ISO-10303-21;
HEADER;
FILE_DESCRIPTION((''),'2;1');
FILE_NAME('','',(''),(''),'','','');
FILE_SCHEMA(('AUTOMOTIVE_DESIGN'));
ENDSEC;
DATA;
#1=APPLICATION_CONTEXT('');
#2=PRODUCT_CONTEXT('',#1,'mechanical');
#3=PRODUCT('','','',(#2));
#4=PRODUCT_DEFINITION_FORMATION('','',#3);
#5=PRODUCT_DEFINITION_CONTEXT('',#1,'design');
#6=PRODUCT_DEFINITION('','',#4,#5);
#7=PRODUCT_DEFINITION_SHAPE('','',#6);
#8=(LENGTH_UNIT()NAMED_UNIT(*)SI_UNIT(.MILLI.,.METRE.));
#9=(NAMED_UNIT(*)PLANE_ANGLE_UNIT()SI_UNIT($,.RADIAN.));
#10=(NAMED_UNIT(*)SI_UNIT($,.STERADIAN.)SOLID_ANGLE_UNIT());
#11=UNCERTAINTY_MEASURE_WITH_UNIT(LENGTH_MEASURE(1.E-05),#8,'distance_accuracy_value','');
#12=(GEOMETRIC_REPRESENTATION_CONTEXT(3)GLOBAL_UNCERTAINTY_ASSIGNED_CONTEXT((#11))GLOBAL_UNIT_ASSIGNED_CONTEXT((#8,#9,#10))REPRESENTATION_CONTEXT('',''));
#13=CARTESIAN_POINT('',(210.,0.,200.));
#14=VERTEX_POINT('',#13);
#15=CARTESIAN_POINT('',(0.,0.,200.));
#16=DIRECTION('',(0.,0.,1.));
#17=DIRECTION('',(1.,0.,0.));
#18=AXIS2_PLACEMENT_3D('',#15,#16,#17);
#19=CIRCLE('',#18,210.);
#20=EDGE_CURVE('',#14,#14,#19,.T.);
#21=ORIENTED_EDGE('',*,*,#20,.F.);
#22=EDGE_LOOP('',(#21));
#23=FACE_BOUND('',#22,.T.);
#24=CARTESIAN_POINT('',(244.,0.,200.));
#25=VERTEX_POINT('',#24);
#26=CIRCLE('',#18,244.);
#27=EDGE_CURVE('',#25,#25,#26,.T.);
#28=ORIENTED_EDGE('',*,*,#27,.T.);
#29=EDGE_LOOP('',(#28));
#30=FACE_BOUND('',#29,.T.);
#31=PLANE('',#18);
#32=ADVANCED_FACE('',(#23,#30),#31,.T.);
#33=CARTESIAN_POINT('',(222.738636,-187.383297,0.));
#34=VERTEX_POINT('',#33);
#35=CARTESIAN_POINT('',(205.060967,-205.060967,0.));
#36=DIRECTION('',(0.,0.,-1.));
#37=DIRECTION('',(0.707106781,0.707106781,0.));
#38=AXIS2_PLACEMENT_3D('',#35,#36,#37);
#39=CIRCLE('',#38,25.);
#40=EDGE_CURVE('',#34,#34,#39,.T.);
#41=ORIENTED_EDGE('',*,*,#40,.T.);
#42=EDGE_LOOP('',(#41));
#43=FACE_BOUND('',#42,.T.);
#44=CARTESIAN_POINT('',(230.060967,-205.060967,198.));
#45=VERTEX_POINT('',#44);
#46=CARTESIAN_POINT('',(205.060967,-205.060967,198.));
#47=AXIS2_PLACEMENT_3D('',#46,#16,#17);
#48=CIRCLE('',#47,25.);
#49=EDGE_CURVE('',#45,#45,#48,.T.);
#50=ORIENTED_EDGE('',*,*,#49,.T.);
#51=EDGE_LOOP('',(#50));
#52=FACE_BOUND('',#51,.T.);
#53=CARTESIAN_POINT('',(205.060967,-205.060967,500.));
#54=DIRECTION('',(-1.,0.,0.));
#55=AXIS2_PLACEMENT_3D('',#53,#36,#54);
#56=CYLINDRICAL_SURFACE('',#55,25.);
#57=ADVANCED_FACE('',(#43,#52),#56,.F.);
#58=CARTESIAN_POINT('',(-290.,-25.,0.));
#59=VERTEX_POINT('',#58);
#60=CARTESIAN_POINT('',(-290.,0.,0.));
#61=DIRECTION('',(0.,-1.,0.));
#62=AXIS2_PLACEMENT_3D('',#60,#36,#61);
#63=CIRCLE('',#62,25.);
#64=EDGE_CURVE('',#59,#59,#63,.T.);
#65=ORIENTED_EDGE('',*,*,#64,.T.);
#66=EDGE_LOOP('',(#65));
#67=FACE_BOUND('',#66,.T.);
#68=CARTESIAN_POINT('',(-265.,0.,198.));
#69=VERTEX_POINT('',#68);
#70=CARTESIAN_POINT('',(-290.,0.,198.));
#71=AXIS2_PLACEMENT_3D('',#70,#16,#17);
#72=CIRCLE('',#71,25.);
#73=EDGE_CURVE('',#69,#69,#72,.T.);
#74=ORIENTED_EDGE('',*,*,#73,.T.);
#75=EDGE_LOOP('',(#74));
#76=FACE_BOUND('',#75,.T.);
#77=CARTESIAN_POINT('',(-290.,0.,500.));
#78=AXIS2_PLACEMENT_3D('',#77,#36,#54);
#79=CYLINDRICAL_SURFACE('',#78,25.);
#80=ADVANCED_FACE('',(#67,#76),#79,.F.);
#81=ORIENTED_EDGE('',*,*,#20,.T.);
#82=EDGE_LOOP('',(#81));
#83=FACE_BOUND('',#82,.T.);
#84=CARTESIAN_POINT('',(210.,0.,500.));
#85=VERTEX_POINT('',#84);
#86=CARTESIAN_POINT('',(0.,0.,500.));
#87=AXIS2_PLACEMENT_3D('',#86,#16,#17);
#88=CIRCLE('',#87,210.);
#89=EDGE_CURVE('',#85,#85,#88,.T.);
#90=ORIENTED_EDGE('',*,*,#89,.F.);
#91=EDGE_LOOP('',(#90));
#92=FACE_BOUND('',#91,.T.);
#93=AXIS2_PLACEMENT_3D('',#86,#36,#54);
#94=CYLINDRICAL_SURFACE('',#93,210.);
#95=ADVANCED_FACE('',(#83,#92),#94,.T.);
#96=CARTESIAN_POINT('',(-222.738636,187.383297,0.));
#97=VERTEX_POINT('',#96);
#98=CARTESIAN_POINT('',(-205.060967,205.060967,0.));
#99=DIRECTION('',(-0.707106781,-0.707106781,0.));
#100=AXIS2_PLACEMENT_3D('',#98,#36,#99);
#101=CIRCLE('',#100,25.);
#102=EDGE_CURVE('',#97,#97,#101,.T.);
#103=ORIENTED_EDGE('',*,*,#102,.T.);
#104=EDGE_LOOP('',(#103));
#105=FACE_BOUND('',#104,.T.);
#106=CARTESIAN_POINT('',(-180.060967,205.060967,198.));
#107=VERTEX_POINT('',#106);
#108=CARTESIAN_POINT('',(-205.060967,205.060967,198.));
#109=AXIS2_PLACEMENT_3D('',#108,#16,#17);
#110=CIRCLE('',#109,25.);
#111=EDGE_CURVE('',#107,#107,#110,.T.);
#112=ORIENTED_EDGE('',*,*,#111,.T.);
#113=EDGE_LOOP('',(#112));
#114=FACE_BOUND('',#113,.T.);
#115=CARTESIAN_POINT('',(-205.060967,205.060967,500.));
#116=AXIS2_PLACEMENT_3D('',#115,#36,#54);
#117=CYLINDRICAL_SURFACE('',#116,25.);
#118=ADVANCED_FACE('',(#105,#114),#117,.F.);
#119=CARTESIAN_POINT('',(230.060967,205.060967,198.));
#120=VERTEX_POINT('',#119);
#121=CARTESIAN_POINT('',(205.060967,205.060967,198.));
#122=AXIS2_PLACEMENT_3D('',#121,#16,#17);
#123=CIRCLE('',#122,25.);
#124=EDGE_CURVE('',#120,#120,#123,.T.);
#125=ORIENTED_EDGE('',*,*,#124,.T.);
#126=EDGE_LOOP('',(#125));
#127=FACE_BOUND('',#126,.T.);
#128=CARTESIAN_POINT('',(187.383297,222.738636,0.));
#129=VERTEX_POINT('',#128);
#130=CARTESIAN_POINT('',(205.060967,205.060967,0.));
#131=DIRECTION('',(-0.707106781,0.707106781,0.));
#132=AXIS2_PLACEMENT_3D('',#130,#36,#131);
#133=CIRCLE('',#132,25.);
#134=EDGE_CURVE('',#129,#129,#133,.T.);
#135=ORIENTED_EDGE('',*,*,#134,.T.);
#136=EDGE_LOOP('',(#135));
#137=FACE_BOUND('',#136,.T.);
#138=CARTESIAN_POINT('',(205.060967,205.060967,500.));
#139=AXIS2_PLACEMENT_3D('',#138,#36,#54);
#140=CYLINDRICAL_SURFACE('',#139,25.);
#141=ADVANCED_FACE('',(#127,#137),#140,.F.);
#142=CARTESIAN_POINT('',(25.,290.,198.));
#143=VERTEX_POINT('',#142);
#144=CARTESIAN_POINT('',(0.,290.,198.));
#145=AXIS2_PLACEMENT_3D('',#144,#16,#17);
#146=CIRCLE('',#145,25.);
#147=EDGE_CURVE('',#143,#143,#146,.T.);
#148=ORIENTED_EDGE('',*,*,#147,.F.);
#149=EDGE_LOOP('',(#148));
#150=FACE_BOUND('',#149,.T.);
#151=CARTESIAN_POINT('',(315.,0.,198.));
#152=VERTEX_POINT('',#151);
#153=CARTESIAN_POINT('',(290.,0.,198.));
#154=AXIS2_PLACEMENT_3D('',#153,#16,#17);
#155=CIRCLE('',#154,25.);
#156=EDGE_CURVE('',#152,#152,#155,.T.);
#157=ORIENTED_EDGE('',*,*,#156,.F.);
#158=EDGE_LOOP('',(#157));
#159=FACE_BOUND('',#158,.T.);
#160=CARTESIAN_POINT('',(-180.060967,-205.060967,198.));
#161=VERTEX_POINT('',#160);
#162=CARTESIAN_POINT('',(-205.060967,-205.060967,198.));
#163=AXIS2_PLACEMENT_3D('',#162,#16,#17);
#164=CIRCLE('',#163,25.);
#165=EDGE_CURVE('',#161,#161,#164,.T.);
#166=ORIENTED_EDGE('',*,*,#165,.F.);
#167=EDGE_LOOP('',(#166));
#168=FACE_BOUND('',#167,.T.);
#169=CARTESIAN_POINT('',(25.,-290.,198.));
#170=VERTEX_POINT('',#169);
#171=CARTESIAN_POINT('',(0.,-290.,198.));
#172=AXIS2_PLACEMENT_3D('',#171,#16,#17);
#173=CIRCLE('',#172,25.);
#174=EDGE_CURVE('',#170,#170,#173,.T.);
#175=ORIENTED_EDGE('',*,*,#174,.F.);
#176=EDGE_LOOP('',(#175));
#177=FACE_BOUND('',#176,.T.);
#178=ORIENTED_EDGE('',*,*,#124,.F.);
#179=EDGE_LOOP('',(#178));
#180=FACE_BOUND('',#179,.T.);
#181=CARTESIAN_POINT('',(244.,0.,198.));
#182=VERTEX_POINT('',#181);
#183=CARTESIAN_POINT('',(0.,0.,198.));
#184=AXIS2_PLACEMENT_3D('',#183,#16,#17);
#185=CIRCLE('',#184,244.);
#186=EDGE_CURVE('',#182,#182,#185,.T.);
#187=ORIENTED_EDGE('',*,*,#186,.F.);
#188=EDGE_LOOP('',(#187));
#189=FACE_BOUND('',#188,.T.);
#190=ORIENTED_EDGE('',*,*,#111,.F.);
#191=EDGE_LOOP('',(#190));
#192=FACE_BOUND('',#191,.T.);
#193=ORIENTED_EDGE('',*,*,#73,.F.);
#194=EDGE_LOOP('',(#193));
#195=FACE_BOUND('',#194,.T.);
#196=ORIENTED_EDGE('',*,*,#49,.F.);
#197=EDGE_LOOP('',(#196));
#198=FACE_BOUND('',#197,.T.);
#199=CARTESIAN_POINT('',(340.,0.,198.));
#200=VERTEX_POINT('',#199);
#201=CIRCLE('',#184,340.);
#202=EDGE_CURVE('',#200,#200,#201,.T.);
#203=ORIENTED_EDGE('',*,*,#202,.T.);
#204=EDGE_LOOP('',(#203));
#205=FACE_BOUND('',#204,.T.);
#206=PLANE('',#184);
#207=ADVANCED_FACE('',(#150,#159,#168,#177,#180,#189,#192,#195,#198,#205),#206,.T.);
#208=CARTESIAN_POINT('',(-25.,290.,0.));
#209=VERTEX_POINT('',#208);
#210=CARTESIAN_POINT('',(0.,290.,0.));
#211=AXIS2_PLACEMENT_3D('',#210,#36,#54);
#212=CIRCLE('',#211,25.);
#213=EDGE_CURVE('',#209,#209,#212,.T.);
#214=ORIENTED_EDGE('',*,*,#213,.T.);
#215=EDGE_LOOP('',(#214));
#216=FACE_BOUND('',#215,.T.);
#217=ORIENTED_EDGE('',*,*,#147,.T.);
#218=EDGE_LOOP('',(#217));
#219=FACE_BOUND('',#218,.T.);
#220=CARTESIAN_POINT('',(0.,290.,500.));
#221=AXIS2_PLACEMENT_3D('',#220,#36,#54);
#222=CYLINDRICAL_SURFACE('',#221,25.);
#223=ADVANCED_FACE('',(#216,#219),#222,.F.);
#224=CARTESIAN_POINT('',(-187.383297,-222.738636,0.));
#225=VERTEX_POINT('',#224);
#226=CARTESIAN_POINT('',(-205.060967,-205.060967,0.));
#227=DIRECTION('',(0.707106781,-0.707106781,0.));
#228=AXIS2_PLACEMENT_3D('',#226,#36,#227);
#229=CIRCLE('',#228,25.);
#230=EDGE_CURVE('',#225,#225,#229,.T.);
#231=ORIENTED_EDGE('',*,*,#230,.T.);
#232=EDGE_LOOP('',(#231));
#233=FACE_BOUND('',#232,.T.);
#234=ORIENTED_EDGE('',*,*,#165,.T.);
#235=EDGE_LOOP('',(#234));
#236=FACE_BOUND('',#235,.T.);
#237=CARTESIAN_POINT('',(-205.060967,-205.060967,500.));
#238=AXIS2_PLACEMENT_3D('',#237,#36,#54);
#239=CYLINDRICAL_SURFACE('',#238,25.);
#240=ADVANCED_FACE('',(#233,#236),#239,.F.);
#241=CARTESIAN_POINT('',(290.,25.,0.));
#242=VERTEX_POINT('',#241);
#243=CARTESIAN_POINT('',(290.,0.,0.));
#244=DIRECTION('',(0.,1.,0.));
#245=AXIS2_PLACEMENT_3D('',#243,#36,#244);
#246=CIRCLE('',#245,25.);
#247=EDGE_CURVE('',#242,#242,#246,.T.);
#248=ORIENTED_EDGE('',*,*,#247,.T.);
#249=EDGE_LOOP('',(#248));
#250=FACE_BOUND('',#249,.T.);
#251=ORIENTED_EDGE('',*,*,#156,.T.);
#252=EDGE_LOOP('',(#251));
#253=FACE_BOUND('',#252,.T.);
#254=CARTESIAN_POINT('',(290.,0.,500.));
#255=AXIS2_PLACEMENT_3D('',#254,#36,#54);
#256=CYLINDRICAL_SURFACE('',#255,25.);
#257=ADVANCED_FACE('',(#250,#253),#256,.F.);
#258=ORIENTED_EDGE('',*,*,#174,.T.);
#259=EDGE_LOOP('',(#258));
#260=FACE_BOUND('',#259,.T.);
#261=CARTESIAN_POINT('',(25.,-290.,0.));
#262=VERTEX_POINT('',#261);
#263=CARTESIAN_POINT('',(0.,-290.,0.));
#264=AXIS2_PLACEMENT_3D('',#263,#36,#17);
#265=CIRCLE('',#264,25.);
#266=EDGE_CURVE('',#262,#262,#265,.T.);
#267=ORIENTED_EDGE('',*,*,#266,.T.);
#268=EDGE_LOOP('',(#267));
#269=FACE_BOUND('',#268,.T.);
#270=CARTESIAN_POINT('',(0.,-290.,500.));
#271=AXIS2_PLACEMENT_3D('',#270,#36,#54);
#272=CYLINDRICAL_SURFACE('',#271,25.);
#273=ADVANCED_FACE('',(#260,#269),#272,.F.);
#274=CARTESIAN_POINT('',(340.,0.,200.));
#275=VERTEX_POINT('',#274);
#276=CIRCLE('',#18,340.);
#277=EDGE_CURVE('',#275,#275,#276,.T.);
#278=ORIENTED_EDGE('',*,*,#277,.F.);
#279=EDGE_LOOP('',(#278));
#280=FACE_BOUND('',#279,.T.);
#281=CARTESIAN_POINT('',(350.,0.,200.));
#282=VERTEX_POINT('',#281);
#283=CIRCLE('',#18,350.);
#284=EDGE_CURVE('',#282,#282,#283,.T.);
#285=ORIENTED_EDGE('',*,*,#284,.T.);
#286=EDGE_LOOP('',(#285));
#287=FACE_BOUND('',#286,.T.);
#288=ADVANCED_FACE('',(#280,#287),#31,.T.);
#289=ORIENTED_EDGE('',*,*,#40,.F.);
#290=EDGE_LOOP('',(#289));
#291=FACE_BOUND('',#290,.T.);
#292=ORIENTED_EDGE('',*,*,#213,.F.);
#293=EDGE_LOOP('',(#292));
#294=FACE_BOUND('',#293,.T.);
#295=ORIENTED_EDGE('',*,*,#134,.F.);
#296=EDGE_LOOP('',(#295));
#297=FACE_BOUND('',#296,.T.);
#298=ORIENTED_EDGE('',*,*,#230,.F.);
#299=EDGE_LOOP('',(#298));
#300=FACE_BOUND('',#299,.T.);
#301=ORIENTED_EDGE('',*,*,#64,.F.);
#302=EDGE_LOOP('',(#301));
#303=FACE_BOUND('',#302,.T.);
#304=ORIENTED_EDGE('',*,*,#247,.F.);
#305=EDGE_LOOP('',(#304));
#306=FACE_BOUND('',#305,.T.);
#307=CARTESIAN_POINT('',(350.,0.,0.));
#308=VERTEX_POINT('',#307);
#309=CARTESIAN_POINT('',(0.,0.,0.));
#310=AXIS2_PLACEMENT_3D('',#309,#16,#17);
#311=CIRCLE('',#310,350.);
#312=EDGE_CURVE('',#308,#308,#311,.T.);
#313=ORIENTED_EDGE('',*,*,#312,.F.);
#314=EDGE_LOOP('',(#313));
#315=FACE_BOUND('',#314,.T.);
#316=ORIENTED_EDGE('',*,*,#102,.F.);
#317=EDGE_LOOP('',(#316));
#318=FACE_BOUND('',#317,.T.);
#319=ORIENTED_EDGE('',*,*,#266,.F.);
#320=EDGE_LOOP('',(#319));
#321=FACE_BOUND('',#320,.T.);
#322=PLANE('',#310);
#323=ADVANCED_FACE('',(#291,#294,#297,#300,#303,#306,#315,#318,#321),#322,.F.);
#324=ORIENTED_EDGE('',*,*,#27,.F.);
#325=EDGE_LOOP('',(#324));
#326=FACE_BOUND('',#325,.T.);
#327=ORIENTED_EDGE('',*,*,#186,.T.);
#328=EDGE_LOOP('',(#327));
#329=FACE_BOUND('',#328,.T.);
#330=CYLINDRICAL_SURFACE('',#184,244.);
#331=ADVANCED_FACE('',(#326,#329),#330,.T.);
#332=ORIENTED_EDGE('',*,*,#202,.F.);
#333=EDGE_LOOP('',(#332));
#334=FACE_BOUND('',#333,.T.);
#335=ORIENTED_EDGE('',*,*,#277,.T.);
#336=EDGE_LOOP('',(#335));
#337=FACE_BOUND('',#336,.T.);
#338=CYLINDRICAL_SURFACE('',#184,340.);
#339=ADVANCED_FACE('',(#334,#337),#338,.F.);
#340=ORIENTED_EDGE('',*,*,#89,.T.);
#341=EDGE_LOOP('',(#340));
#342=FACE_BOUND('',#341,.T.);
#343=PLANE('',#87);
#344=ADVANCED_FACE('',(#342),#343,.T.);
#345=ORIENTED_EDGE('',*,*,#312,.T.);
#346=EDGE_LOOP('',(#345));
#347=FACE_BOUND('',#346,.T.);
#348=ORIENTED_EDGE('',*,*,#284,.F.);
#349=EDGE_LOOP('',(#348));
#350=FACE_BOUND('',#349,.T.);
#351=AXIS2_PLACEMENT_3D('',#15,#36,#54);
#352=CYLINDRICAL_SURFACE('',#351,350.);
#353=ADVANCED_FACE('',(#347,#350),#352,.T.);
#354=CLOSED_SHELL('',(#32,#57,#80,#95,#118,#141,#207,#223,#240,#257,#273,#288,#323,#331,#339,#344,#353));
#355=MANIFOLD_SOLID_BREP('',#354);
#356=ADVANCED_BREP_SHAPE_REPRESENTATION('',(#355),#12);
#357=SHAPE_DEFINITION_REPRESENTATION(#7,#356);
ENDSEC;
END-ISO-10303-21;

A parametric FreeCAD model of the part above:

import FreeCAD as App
import Part
import Sketcher

V = App.Vector

doc = App.newDocument("Part")
body = doc.addObject("PartDesign::Body", "Body")

# Sketch on XY plane
sketch1 = body.newObject("Sketcher::SketchObject", "Sketch")
sketch1.AttachmentSupport = (doc.getObject("XY_Plane"), [""])
sketch1.MapMode = "FlatFace"
sketch1.addGeometry(Part.Circle(V(0, 0, 0), V(0, 0, 1), 350), False)
sketch1.addConstraint([
    Sketcher.Constraint("Coincident", 0, 3, -1, 1),
    Sketcher.Constraint("Diameter", 0, 700.0),
])
pad1 = body.newObject("PartDesign::Pad", "Pad")
pad1.Profile = sketch1
pad1.Length = 200

# Sketch on XY plane
sketch2 = body.newObject("Sketcher::SketchObject", "Sketch001")
sketch2.AttachmentSupport = (doc.getObject("XY_Plane"), [""])
sketch2.MapMode = "FlatFace"
sketch2.AttachmentOffset = App.Placement(V(0, 0, 200), App.Rotation())
sketch2.addGeometry(Part.Circle(V(0, 0, 0), V(0, 0, 1), 210), False)
sketch2.addConstraint([
    Sketcher.Constraint("Coincident", 0, 3, -1, 1),
    Sketcher.Constraint("Diameter", 0, 420.0),
])
pad2 = body.newObject("PartDesign::Pad", "Pad001")
pad2.Profile = sketch2
pad2.Length = 300

# Sketch on XY plane
sketch3 = body.newObject("Sketcher::SketchObject", "Sketch002")
sketch3.AttachmentSupport = (doc.getObject("XY_Plane"), [""])
sketch3.MapMode = "FlatFace"
sketch3.AttachmentOffset = App.Placement(V(0, 0, 200), App.Rotation())
sketch3.addGeometry([
    Part.Circle(V(0, 0, 0), V(0, 0, 1), 340),
    Part.Circle(V(0, 0, 0), V(0, 0, 1), 244),
], False)
sketch3.addConstraint([
    Sketcher.Constraint("Coincident", 0, 3, -1, 1),
    Sketcher.Constraint("Coincident", 1, 3, -1, 1),
    Sketcher.Constraint("Diameter", 0, 680.0),
    Sketcher.Constraint("Diameter", 1, 488.0),
])
pocket1 = body.newObject("PartDesign::Pocket", "Pocket")
pocket1.Profile = sketch3
pocket1.Length = 2

# Sketch on XY plane
sketch4 = body.newObject("Sketcher::SketchObject", "Sketch003")
sketch4.AttachmentSupport = (doc.getObject("XY_Plane"), [""])
sketch4.MapMode = "FlatFace"
sketch4.addGeometry(Part.Circle(V(0, 290, 0), V(0, 0, 1), 25), False)
sketch4.addConstraint([
    Sketcher.Constraint("PointOnObject", 0, 3, -2),
    Sketcher.Constraint("Diameter", 0, 50.0),
    Sketcher.Constraint("DistanceY", -1, 1, 0, 3, 290.0),
])
pocket2 = body.newObject("PartDesign::Pocket", "Pocket001")
pocket2.Profile = sketch4
pocket2.Type = "ThroughAll"
pocket2.Reversed = True
doc.recompute()

polarpattern = body.newObject("PartDesign::PolarPattern", "PolarPattern")
polarpattern.Originals = [pocket2]
polarpattern.Axis = (doc.getObject("Z_Axis"), [""])
polarpattern.Angle = 360
polarpattern.Occurrences = 8
body.Tip = polarpattern

doc.recompute()
